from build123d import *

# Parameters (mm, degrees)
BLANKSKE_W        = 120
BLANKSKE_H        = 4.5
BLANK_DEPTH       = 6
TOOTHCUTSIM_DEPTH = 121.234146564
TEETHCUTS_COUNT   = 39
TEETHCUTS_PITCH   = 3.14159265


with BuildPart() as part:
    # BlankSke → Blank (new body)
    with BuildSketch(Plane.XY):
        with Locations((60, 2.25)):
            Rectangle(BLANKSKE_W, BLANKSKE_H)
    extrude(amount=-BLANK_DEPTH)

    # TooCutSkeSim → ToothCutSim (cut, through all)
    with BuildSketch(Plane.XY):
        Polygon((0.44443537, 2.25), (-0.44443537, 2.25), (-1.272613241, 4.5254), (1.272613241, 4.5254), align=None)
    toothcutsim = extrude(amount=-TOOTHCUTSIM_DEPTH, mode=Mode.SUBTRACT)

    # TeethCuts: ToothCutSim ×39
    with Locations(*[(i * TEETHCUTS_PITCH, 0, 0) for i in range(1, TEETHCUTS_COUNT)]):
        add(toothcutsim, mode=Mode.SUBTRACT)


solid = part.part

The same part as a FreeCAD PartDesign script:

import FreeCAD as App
import Part
import Sketcher
Q = App.Units.Quantity


def add_polygon(sketch, points):
    """Adds a closed chain of lines whose ends are joined by coincident constraints."""
    first, n = sketch.GeometryCount, len(points)
    for a, b in zip(points, points[1:] + points[:1]):
        sketch.addGeometry(Part.LineSegment(App.Vector(*a, 0), App.Vector(*b, 0)), False)
    for i in range(n):
        sketch.addConstraint(Sketcher.Constraint("Coincident", first + i, 2, first + (i + 1) % n, 1))

doc = App.newDocument("Part")
body = doc.addObject("PartDesign::Body", "Body")

sketch1 = body.newObject("Sketcher::SketchObject", "Sketch")
sketch1.AttachmentSupport = (doc.getObject("XY_Plane"), [""])
sketch1.MapMode = "FlatFace"
add_polygon(sketch1, [(0, 4.5), (0, 0), (120, 0), (120, 4.5)])
sketch1.addConstraint(Sketcher.Constraint("Vertical", 0))
sketch1.addConstraint(Sketcher.Constraint("Horizontal", 1))
sketch1.addConstraint(Sketcher.Constraint("Vertical", 2))
sketch1.addConstraint(Sketcher.Constraint("Horizontal", 3))
sketch1.addConstraint(Sketcher.Constraint("Coincident", 0, 2, -1, 1))
sketch1.addConstraint(Sketcher.Constraint("DistanceX", 1, 1, 1, 2, Q("120 mm")))
sketch1.addConstraint(Sketcher.Constraint("DistanceY", 0, 2, 0, 1, Q("4.5 mm")))
pad1 = body.newObject("PartDesign::Pad", "Pad")
pad1.Profile = sketch1
pad1.Length = 6
pad1.Reversed = True

sketch2 = body.newObject("Sketcher::SketchObject", "Sketch001")
sketch2.AttachmentSupport = (doc.getObject("XY_Plane"), [""])
sketch2.MapMode = "FlatFace"
add_polygon(sketch2, [(-0.444435, 2.25), (0.444435, 2.25), (1.272613, 4.5254), (-1.272613, 4.5254)])
sketch2.addConstraint(Sketcher.Constraint("Horizontal", 0))
sketch2.addConstraint(Sketcher.Constraint("Horizontal", 2))
sketch2.addConstraint(Sketcher.Constraint("Equal", 1, 3))
sketch2.addConstraint(Sketcher.Constraint("Angle", 1, Q("70 deg")))
sketch2.addConstraint(Sketcher.Constraint("DistanceY", -1, 1, 0, 2, Q("2.25 mm")))
sketch2.addConstraint(Sketcher.Constraint("DistanceX", 0, 1, 0, 2, Q("0.888871 mm")))
sketch2.addConstraint(Sketcher.Constraint("DistanceY", -1, 1, 1, 2, Q("4.5254 mm")))
sketch2.addConstraint(Sketcher.Constraint("DistanceX", -1, 1, 0, 2, Q("0.444435 mm")))
pocket1 = body.newObject("PartDesign::Pocket", "Pocket")
pocket1.Profile = sketch2
pocket1.Type = "ThroughAll"
doc.recompute()

linearpattern = body.newObject("PartDesign::LinearPattern", "LinearPattern")
linearpattern.Originals = [pocket1]
linearpattern.Direction = (doc.getObject("X_Axis"), [""])
linearpattern.Mode = "offset"
linearpattern.Offset = 3.141593
linearpattern.Occurrences = 39
body.Tip = linearpattern

doc.recompute()
